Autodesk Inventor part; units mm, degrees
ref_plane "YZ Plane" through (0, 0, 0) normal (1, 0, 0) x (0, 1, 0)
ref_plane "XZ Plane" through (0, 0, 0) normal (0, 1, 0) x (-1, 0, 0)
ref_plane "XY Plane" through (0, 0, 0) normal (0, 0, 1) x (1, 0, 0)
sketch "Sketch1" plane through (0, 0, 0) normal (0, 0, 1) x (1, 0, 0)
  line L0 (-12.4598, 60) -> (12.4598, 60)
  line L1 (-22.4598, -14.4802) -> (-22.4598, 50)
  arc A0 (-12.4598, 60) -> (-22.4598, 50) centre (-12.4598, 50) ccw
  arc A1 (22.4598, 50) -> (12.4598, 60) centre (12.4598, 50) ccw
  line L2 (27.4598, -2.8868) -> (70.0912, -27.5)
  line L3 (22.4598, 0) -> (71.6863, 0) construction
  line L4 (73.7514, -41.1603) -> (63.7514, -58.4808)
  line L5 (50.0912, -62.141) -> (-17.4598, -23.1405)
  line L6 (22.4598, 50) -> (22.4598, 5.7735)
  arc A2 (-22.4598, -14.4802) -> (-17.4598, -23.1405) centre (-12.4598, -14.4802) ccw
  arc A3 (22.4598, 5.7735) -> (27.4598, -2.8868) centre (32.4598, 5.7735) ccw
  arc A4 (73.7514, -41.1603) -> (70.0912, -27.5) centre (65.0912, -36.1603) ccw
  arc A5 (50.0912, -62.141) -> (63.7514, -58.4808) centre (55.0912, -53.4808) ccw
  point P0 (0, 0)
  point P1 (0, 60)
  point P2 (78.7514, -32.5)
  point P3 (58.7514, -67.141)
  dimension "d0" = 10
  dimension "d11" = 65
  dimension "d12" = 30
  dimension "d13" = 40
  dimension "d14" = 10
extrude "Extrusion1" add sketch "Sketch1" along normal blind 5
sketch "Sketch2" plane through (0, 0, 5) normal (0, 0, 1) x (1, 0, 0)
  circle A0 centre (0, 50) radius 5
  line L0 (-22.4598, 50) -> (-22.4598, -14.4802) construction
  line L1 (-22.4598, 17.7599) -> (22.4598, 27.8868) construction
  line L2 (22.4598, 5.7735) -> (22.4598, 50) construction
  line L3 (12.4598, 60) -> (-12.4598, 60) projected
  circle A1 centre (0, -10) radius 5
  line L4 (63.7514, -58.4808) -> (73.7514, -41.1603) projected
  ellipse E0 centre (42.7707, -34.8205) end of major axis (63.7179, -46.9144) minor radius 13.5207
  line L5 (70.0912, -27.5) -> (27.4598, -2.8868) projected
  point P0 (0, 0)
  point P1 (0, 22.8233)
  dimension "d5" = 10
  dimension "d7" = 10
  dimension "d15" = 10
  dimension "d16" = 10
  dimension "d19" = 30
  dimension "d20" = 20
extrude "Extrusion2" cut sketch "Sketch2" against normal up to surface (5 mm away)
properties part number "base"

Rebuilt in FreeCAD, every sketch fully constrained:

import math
import FreeCAD as App
import Part
import Sketcher
Q = App.Units.Quantity

doc = App.newDocument("Part")
params = doc.addObject("Spreadsheet::Sheet", "Params")
for row, (alias, value) in enumerate([
    ("sketch1_radius", "10 mm"),
    ("pad1_length", "5 mm"),
    ("sketch2_diameter", "10 mm"),
    ("pocket1_length", "5 mm"),
], start=1):
    params.set(f"A{row}", alias)
    params.set(f"B{row}", "=" + value)
    params.setAlias(f"B{row}", alias)

body = doc.addObject("PartDesign::Body", "Body")

# Sketch on XY plane
sketch1 = body.newObject("Sketcher::SketchObject", "Sketch")
sketch1.AttachmentSupport = (doc.getObject("XY_Plane"), [""])
sketch1.MapMode = "FlatFace"
sketch1.addGeometry(Part.LineSegment(App.Vector(12, 60, 0), App.Vector(-12, 60, 0)), False)
sketch1.addGeometry(Part.ArcOfCircle(Part.Circle(App.Vector(-12, 50, 0), App.Vector(0, 0, 1), 10), math.radians(90), math.radians(180)), False)
sketch1.addGeometry(Part.LineSegment(App.Vector(-22, 50, 0), App.Vector(-22, -14, 0)), False)
sketch1.addGeometry(Part.ArcOfCircle(Part.Circle(App.Vector(-12, -14, 0), App.Vector(0, 0, 1), 10), math.radians(180), math.radians(240)), False)
sketch1.addGeometry(Part.LineSegment(App.Vector(-17, -23, 0), App.Vector(50, -62, 0)), False)
sketch1.addGeometry(Part.ArcOfCircle(Part.Circle(App.Vector(55, -53, 0), App.Vector(0, 0, 1), 10), math.radians(-120), math.radians(-30)), False)
sketch1.addGeometry(Part.LineSegment(App.Vector(64, -58, 0), App.Vector(74, -41, 0)), False)
sketch1.addGeometry(Part.ArcOfCircle(Part.Circle(App.Vector(65, -36, 0), App.Vector(0, 0, 1), 10), math.radians(-30), math.radians(60)), False)
sketch1.addGeometry(Part.LineSegment(App.Vector(70, -28, 0), App.Vector(27, -3, 0)), False)
sketch1.addGeometry(Part.ArcOfCircle(Part.Circle(App.Vector(32, 6, 0), App.Vector(0, 0, 1), 10), math.radians(180), math.radians(240)), False)
sketch1.addGeometry(Part.LineSegment(App.Vector(22, 6, 0), App.Vector(22, 50, 0)), False)
sketch1.addGeometry(Part.ArcOfCircle(Part.Circle(App.Vector(12, 50, 0), App.Vector(0, 0, 1), 10), math.radians(0), math.radians(90)), False)
sketch1.addConstraint(Sketcher.Constraint("Tangent", 0, 2, 1, 1))
sketch1.addConstraint(Sketcher.Constraint("Tangent", 1, 2, 2, 1))
sketch1.addConstraint(Sketcher.Constraint("Tangent", 2, 2, 3, 1))
sketch1.addConstraint(Sketcher.Constraint("Tangent", 3, 2, 4, 1))
sketch1.addConstraint(Sketcher.Constraint("Tangent", 4, 2, 5, 1))
sketch1.addConstraint(Sketcher.Constraint("Tangent", 5, 2, 6, 1))
sketch1.addConstraint(Sketcher.Constraint("Tangent", 6, 2, 7, 1))
sketch1.addConstraint(Sketcher.Constraint("Tangent", 7, 2, 8, 1))
sketch1.addConstraint(Sketcher.Constraint("Tangent", 8, 2, 9, 2))
sketch1.addConstraint(Sketcher.Constraint("Tangent", 9, 1, 10, 1))
sketch1.addConstraint(Sketcher.Constraint("Tangent", 10, 2, 11, 1))
sketch1.addConstraint(Sketcher.Constraint("Tangent", 11, 2, 0, 1))
sketch1.addConstraint(Sketcher.Constraint("Horizontal", 0))
sketch1.addConstraint(Sketcher.Constraint("Vertical", 2))
sketch1.addConstraint(Sketcher.Constraint("Vertical", 10))
sketch1.addConstraint(Sketcher.Constraint("Equal", 1, 3))
sketch1.addConstraint(Sketcher.Constraint("Equal", 3, 5))
sketch1.addConstraint(Sketcher.Constraint("Equal", 5, 7))
sketch1.addConstraint(Sketcher.Constraint("Equal", 7, 9))
sketch1.addConstraint(Sketcher.Constraint("Equal", 9, 11))
sketch1.addConstraint(Sketcher.Constraint("Perpendicular", 4, 6))
sketch1.addConstraint(Sketcher.Constraint("Perpendicular", 6, 8))
sketch1.addConstraint(Sketcher.Constraint("Radius", 1, 10.0))
sketch1.addConstraint(Sketcher.Constraint("Angle", 4, Q("-30 deg")))
sketch1.addConstraint(Sketcher.Constraint("DistanceX", 5, 3, 7, 3, 10.0))
sketch1.addConstraint(Sketcher.Constraint("DistanceY", -1, 1, 1, 3, 50.0))
sketch1.addConstraint(Sketcher.Constraint("DistanceY", 7, 2, -1, 1, 27.5))
sketch1.addConstraint(Sketcher.Constraint("DistanceY", 7, 3, 3, 3, 21.68))
sketch1.addConstraint(Sketcher.Constraint("DistanceX", 0, 2, 0, 1, 24.9196))
sketch1.addConstraint(Sketcher.Constraint("DistanceX", 1, 3, -1, 1, 12.4598))
sketch1.setExpression("Constraints[22]", "Params.sketch1_radius")
pad1 = body.newObject("PartDesign::Pad", "Pad")
pad1.Profile = sketch1
pad1.setExpression("Length", "Params.pad1_length")

# Sketch on XY plane
sketch2 = body.newObject("Sketcher::SketchObject", "Sketch001")
sketch2.AttachmentSupport = (doc.getObject("XY_Plane"), [""])
sketch2.MapMode = "FlatFace"
sketch2.AttachmentOffset = App.Placement(App.Vector(0, 0, 5), App.Rotation())
sketch2.addGeometry(Part.Circle(App.Vector(0, 50, 0), App.Vector(0, 0, 1), 5), False)
sketch2.addGeometry(Part.Circle(App.Vector(0, -10, 0), App.Vector(0, 0, 1), 5), False)
sketch2.addGeometry(Part.Ellipse(App.Vector(63.7179, -46.9144, 0), App.Vector(49.531062, -23.111237, 0), App.Vector(42.7707, -34.8205, 0)), False)
sketch2.addConstraint(Sketcher.Constraint("Block", 2))
sketch2.addConstraint(Sketcher.Constraint("Equal", 0, 1))
sketch2.addConstraint(Sketcher.Constraint("PointOnObject", 0, 3, -2))
sketch2.addConstraint(Sketcher.Constraint("PointOnObject", 1, 3, -2))
sketch2.addConstraint(Sketcher.Constraint("Diameter", 0, 10.0))
sketch2.addConstraint(Sketcher.Constraint("DistanceY", 1, 3, -1, 1, 10.0))
sketch2.addConstraint(Sketcher.Constraint("DistanceY", -1, 1, 0, 3, 50.0))
sketch2.setExpression("Constraints[4]", "Params.sketch2_diameter")
pocket1 = body.newObject("PartDesign::Pocket", "Pocket")
pocket1.Profile = sketch2
pocket1.setExpression("Length", "Params.pocket1_length")

doc.recompute()
